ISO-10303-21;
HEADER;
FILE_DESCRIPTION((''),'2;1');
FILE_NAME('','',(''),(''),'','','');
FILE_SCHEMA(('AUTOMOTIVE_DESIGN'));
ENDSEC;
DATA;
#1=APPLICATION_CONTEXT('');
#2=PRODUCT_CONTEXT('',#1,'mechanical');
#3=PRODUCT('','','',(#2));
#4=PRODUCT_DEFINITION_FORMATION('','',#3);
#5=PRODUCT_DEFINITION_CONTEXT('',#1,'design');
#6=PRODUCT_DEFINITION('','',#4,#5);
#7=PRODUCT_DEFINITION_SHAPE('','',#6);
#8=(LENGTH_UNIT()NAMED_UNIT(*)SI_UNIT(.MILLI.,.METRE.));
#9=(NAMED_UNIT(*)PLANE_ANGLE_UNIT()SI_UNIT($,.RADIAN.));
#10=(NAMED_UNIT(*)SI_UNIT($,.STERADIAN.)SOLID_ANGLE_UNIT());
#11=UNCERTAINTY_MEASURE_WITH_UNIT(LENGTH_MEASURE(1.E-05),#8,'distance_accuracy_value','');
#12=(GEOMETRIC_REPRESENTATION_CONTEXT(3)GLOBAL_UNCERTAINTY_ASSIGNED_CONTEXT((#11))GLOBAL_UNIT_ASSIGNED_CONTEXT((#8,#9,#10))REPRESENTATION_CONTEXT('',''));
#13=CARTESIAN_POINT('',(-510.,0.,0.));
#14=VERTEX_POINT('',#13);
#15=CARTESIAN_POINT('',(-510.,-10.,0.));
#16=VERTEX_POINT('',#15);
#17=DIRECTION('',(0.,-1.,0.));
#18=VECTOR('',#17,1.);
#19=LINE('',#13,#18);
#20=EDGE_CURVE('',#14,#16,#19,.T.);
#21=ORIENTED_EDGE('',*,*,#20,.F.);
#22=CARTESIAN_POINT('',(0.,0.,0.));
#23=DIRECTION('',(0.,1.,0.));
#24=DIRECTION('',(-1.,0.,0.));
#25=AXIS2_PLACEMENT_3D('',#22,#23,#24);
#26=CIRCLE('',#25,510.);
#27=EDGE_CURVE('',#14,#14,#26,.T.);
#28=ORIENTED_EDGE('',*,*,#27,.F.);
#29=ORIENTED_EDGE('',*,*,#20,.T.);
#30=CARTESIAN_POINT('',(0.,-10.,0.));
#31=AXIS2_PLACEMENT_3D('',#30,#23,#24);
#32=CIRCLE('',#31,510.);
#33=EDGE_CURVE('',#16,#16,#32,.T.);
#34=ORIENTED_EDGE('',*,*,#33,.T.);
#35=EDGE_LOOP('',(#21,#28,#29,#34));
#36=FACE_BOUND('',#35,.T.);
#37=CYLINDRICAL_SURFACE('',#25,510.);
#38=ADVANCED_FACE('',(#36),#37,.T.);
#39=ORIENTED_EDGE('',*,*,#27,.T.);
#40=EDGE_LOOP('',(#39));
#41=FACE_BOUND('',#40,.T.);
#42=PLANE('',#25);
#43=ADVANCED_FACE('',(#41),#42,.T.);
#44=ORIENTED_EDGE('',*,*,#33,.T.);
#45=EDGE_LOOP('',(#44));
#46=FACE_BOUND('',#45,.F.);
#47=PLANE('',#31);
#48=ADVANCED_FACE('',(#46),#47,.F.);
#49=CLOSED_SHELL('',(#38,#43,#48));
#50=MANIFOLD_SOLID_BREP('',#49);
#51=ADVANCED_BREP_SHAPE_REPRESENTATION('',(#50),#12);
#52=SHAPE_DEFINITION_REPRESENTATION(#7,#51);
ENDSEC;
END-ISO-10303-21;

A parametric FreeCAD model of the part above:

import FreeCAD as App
import Part
import Sketcher
Q = App.Units.Quantity

doc = App.newDocument("Part")
body = doc.addObject("PartDesign::Body", "Body")

# Sketch on XZ plane
sketch1 = body.newObject("Sketcher::SketchObject", "Sketch")
sketch1.AttachmentSupport = (doc.getObject("XZ_Plane"), [""])
sketch1.MapMode = "FlatFace"
sketch1.addGeometry(Part.Circle(App.Vector(0, 0, 0), App.Vector(0, 0, 1), 510), False)
sketch1.addConstraint(Sketcher.Constraint("Coincident", 0, 3, -1, 1))
sketch1.addConstraint(Sketcher.Constraint("Diameter", 0, Q("1020 mm")))
pad1 = body.newObject("PartDesign::Pad", "Pad")
pad1.Profile = sketch1
pad1.Length = 10

doc.recompute()
